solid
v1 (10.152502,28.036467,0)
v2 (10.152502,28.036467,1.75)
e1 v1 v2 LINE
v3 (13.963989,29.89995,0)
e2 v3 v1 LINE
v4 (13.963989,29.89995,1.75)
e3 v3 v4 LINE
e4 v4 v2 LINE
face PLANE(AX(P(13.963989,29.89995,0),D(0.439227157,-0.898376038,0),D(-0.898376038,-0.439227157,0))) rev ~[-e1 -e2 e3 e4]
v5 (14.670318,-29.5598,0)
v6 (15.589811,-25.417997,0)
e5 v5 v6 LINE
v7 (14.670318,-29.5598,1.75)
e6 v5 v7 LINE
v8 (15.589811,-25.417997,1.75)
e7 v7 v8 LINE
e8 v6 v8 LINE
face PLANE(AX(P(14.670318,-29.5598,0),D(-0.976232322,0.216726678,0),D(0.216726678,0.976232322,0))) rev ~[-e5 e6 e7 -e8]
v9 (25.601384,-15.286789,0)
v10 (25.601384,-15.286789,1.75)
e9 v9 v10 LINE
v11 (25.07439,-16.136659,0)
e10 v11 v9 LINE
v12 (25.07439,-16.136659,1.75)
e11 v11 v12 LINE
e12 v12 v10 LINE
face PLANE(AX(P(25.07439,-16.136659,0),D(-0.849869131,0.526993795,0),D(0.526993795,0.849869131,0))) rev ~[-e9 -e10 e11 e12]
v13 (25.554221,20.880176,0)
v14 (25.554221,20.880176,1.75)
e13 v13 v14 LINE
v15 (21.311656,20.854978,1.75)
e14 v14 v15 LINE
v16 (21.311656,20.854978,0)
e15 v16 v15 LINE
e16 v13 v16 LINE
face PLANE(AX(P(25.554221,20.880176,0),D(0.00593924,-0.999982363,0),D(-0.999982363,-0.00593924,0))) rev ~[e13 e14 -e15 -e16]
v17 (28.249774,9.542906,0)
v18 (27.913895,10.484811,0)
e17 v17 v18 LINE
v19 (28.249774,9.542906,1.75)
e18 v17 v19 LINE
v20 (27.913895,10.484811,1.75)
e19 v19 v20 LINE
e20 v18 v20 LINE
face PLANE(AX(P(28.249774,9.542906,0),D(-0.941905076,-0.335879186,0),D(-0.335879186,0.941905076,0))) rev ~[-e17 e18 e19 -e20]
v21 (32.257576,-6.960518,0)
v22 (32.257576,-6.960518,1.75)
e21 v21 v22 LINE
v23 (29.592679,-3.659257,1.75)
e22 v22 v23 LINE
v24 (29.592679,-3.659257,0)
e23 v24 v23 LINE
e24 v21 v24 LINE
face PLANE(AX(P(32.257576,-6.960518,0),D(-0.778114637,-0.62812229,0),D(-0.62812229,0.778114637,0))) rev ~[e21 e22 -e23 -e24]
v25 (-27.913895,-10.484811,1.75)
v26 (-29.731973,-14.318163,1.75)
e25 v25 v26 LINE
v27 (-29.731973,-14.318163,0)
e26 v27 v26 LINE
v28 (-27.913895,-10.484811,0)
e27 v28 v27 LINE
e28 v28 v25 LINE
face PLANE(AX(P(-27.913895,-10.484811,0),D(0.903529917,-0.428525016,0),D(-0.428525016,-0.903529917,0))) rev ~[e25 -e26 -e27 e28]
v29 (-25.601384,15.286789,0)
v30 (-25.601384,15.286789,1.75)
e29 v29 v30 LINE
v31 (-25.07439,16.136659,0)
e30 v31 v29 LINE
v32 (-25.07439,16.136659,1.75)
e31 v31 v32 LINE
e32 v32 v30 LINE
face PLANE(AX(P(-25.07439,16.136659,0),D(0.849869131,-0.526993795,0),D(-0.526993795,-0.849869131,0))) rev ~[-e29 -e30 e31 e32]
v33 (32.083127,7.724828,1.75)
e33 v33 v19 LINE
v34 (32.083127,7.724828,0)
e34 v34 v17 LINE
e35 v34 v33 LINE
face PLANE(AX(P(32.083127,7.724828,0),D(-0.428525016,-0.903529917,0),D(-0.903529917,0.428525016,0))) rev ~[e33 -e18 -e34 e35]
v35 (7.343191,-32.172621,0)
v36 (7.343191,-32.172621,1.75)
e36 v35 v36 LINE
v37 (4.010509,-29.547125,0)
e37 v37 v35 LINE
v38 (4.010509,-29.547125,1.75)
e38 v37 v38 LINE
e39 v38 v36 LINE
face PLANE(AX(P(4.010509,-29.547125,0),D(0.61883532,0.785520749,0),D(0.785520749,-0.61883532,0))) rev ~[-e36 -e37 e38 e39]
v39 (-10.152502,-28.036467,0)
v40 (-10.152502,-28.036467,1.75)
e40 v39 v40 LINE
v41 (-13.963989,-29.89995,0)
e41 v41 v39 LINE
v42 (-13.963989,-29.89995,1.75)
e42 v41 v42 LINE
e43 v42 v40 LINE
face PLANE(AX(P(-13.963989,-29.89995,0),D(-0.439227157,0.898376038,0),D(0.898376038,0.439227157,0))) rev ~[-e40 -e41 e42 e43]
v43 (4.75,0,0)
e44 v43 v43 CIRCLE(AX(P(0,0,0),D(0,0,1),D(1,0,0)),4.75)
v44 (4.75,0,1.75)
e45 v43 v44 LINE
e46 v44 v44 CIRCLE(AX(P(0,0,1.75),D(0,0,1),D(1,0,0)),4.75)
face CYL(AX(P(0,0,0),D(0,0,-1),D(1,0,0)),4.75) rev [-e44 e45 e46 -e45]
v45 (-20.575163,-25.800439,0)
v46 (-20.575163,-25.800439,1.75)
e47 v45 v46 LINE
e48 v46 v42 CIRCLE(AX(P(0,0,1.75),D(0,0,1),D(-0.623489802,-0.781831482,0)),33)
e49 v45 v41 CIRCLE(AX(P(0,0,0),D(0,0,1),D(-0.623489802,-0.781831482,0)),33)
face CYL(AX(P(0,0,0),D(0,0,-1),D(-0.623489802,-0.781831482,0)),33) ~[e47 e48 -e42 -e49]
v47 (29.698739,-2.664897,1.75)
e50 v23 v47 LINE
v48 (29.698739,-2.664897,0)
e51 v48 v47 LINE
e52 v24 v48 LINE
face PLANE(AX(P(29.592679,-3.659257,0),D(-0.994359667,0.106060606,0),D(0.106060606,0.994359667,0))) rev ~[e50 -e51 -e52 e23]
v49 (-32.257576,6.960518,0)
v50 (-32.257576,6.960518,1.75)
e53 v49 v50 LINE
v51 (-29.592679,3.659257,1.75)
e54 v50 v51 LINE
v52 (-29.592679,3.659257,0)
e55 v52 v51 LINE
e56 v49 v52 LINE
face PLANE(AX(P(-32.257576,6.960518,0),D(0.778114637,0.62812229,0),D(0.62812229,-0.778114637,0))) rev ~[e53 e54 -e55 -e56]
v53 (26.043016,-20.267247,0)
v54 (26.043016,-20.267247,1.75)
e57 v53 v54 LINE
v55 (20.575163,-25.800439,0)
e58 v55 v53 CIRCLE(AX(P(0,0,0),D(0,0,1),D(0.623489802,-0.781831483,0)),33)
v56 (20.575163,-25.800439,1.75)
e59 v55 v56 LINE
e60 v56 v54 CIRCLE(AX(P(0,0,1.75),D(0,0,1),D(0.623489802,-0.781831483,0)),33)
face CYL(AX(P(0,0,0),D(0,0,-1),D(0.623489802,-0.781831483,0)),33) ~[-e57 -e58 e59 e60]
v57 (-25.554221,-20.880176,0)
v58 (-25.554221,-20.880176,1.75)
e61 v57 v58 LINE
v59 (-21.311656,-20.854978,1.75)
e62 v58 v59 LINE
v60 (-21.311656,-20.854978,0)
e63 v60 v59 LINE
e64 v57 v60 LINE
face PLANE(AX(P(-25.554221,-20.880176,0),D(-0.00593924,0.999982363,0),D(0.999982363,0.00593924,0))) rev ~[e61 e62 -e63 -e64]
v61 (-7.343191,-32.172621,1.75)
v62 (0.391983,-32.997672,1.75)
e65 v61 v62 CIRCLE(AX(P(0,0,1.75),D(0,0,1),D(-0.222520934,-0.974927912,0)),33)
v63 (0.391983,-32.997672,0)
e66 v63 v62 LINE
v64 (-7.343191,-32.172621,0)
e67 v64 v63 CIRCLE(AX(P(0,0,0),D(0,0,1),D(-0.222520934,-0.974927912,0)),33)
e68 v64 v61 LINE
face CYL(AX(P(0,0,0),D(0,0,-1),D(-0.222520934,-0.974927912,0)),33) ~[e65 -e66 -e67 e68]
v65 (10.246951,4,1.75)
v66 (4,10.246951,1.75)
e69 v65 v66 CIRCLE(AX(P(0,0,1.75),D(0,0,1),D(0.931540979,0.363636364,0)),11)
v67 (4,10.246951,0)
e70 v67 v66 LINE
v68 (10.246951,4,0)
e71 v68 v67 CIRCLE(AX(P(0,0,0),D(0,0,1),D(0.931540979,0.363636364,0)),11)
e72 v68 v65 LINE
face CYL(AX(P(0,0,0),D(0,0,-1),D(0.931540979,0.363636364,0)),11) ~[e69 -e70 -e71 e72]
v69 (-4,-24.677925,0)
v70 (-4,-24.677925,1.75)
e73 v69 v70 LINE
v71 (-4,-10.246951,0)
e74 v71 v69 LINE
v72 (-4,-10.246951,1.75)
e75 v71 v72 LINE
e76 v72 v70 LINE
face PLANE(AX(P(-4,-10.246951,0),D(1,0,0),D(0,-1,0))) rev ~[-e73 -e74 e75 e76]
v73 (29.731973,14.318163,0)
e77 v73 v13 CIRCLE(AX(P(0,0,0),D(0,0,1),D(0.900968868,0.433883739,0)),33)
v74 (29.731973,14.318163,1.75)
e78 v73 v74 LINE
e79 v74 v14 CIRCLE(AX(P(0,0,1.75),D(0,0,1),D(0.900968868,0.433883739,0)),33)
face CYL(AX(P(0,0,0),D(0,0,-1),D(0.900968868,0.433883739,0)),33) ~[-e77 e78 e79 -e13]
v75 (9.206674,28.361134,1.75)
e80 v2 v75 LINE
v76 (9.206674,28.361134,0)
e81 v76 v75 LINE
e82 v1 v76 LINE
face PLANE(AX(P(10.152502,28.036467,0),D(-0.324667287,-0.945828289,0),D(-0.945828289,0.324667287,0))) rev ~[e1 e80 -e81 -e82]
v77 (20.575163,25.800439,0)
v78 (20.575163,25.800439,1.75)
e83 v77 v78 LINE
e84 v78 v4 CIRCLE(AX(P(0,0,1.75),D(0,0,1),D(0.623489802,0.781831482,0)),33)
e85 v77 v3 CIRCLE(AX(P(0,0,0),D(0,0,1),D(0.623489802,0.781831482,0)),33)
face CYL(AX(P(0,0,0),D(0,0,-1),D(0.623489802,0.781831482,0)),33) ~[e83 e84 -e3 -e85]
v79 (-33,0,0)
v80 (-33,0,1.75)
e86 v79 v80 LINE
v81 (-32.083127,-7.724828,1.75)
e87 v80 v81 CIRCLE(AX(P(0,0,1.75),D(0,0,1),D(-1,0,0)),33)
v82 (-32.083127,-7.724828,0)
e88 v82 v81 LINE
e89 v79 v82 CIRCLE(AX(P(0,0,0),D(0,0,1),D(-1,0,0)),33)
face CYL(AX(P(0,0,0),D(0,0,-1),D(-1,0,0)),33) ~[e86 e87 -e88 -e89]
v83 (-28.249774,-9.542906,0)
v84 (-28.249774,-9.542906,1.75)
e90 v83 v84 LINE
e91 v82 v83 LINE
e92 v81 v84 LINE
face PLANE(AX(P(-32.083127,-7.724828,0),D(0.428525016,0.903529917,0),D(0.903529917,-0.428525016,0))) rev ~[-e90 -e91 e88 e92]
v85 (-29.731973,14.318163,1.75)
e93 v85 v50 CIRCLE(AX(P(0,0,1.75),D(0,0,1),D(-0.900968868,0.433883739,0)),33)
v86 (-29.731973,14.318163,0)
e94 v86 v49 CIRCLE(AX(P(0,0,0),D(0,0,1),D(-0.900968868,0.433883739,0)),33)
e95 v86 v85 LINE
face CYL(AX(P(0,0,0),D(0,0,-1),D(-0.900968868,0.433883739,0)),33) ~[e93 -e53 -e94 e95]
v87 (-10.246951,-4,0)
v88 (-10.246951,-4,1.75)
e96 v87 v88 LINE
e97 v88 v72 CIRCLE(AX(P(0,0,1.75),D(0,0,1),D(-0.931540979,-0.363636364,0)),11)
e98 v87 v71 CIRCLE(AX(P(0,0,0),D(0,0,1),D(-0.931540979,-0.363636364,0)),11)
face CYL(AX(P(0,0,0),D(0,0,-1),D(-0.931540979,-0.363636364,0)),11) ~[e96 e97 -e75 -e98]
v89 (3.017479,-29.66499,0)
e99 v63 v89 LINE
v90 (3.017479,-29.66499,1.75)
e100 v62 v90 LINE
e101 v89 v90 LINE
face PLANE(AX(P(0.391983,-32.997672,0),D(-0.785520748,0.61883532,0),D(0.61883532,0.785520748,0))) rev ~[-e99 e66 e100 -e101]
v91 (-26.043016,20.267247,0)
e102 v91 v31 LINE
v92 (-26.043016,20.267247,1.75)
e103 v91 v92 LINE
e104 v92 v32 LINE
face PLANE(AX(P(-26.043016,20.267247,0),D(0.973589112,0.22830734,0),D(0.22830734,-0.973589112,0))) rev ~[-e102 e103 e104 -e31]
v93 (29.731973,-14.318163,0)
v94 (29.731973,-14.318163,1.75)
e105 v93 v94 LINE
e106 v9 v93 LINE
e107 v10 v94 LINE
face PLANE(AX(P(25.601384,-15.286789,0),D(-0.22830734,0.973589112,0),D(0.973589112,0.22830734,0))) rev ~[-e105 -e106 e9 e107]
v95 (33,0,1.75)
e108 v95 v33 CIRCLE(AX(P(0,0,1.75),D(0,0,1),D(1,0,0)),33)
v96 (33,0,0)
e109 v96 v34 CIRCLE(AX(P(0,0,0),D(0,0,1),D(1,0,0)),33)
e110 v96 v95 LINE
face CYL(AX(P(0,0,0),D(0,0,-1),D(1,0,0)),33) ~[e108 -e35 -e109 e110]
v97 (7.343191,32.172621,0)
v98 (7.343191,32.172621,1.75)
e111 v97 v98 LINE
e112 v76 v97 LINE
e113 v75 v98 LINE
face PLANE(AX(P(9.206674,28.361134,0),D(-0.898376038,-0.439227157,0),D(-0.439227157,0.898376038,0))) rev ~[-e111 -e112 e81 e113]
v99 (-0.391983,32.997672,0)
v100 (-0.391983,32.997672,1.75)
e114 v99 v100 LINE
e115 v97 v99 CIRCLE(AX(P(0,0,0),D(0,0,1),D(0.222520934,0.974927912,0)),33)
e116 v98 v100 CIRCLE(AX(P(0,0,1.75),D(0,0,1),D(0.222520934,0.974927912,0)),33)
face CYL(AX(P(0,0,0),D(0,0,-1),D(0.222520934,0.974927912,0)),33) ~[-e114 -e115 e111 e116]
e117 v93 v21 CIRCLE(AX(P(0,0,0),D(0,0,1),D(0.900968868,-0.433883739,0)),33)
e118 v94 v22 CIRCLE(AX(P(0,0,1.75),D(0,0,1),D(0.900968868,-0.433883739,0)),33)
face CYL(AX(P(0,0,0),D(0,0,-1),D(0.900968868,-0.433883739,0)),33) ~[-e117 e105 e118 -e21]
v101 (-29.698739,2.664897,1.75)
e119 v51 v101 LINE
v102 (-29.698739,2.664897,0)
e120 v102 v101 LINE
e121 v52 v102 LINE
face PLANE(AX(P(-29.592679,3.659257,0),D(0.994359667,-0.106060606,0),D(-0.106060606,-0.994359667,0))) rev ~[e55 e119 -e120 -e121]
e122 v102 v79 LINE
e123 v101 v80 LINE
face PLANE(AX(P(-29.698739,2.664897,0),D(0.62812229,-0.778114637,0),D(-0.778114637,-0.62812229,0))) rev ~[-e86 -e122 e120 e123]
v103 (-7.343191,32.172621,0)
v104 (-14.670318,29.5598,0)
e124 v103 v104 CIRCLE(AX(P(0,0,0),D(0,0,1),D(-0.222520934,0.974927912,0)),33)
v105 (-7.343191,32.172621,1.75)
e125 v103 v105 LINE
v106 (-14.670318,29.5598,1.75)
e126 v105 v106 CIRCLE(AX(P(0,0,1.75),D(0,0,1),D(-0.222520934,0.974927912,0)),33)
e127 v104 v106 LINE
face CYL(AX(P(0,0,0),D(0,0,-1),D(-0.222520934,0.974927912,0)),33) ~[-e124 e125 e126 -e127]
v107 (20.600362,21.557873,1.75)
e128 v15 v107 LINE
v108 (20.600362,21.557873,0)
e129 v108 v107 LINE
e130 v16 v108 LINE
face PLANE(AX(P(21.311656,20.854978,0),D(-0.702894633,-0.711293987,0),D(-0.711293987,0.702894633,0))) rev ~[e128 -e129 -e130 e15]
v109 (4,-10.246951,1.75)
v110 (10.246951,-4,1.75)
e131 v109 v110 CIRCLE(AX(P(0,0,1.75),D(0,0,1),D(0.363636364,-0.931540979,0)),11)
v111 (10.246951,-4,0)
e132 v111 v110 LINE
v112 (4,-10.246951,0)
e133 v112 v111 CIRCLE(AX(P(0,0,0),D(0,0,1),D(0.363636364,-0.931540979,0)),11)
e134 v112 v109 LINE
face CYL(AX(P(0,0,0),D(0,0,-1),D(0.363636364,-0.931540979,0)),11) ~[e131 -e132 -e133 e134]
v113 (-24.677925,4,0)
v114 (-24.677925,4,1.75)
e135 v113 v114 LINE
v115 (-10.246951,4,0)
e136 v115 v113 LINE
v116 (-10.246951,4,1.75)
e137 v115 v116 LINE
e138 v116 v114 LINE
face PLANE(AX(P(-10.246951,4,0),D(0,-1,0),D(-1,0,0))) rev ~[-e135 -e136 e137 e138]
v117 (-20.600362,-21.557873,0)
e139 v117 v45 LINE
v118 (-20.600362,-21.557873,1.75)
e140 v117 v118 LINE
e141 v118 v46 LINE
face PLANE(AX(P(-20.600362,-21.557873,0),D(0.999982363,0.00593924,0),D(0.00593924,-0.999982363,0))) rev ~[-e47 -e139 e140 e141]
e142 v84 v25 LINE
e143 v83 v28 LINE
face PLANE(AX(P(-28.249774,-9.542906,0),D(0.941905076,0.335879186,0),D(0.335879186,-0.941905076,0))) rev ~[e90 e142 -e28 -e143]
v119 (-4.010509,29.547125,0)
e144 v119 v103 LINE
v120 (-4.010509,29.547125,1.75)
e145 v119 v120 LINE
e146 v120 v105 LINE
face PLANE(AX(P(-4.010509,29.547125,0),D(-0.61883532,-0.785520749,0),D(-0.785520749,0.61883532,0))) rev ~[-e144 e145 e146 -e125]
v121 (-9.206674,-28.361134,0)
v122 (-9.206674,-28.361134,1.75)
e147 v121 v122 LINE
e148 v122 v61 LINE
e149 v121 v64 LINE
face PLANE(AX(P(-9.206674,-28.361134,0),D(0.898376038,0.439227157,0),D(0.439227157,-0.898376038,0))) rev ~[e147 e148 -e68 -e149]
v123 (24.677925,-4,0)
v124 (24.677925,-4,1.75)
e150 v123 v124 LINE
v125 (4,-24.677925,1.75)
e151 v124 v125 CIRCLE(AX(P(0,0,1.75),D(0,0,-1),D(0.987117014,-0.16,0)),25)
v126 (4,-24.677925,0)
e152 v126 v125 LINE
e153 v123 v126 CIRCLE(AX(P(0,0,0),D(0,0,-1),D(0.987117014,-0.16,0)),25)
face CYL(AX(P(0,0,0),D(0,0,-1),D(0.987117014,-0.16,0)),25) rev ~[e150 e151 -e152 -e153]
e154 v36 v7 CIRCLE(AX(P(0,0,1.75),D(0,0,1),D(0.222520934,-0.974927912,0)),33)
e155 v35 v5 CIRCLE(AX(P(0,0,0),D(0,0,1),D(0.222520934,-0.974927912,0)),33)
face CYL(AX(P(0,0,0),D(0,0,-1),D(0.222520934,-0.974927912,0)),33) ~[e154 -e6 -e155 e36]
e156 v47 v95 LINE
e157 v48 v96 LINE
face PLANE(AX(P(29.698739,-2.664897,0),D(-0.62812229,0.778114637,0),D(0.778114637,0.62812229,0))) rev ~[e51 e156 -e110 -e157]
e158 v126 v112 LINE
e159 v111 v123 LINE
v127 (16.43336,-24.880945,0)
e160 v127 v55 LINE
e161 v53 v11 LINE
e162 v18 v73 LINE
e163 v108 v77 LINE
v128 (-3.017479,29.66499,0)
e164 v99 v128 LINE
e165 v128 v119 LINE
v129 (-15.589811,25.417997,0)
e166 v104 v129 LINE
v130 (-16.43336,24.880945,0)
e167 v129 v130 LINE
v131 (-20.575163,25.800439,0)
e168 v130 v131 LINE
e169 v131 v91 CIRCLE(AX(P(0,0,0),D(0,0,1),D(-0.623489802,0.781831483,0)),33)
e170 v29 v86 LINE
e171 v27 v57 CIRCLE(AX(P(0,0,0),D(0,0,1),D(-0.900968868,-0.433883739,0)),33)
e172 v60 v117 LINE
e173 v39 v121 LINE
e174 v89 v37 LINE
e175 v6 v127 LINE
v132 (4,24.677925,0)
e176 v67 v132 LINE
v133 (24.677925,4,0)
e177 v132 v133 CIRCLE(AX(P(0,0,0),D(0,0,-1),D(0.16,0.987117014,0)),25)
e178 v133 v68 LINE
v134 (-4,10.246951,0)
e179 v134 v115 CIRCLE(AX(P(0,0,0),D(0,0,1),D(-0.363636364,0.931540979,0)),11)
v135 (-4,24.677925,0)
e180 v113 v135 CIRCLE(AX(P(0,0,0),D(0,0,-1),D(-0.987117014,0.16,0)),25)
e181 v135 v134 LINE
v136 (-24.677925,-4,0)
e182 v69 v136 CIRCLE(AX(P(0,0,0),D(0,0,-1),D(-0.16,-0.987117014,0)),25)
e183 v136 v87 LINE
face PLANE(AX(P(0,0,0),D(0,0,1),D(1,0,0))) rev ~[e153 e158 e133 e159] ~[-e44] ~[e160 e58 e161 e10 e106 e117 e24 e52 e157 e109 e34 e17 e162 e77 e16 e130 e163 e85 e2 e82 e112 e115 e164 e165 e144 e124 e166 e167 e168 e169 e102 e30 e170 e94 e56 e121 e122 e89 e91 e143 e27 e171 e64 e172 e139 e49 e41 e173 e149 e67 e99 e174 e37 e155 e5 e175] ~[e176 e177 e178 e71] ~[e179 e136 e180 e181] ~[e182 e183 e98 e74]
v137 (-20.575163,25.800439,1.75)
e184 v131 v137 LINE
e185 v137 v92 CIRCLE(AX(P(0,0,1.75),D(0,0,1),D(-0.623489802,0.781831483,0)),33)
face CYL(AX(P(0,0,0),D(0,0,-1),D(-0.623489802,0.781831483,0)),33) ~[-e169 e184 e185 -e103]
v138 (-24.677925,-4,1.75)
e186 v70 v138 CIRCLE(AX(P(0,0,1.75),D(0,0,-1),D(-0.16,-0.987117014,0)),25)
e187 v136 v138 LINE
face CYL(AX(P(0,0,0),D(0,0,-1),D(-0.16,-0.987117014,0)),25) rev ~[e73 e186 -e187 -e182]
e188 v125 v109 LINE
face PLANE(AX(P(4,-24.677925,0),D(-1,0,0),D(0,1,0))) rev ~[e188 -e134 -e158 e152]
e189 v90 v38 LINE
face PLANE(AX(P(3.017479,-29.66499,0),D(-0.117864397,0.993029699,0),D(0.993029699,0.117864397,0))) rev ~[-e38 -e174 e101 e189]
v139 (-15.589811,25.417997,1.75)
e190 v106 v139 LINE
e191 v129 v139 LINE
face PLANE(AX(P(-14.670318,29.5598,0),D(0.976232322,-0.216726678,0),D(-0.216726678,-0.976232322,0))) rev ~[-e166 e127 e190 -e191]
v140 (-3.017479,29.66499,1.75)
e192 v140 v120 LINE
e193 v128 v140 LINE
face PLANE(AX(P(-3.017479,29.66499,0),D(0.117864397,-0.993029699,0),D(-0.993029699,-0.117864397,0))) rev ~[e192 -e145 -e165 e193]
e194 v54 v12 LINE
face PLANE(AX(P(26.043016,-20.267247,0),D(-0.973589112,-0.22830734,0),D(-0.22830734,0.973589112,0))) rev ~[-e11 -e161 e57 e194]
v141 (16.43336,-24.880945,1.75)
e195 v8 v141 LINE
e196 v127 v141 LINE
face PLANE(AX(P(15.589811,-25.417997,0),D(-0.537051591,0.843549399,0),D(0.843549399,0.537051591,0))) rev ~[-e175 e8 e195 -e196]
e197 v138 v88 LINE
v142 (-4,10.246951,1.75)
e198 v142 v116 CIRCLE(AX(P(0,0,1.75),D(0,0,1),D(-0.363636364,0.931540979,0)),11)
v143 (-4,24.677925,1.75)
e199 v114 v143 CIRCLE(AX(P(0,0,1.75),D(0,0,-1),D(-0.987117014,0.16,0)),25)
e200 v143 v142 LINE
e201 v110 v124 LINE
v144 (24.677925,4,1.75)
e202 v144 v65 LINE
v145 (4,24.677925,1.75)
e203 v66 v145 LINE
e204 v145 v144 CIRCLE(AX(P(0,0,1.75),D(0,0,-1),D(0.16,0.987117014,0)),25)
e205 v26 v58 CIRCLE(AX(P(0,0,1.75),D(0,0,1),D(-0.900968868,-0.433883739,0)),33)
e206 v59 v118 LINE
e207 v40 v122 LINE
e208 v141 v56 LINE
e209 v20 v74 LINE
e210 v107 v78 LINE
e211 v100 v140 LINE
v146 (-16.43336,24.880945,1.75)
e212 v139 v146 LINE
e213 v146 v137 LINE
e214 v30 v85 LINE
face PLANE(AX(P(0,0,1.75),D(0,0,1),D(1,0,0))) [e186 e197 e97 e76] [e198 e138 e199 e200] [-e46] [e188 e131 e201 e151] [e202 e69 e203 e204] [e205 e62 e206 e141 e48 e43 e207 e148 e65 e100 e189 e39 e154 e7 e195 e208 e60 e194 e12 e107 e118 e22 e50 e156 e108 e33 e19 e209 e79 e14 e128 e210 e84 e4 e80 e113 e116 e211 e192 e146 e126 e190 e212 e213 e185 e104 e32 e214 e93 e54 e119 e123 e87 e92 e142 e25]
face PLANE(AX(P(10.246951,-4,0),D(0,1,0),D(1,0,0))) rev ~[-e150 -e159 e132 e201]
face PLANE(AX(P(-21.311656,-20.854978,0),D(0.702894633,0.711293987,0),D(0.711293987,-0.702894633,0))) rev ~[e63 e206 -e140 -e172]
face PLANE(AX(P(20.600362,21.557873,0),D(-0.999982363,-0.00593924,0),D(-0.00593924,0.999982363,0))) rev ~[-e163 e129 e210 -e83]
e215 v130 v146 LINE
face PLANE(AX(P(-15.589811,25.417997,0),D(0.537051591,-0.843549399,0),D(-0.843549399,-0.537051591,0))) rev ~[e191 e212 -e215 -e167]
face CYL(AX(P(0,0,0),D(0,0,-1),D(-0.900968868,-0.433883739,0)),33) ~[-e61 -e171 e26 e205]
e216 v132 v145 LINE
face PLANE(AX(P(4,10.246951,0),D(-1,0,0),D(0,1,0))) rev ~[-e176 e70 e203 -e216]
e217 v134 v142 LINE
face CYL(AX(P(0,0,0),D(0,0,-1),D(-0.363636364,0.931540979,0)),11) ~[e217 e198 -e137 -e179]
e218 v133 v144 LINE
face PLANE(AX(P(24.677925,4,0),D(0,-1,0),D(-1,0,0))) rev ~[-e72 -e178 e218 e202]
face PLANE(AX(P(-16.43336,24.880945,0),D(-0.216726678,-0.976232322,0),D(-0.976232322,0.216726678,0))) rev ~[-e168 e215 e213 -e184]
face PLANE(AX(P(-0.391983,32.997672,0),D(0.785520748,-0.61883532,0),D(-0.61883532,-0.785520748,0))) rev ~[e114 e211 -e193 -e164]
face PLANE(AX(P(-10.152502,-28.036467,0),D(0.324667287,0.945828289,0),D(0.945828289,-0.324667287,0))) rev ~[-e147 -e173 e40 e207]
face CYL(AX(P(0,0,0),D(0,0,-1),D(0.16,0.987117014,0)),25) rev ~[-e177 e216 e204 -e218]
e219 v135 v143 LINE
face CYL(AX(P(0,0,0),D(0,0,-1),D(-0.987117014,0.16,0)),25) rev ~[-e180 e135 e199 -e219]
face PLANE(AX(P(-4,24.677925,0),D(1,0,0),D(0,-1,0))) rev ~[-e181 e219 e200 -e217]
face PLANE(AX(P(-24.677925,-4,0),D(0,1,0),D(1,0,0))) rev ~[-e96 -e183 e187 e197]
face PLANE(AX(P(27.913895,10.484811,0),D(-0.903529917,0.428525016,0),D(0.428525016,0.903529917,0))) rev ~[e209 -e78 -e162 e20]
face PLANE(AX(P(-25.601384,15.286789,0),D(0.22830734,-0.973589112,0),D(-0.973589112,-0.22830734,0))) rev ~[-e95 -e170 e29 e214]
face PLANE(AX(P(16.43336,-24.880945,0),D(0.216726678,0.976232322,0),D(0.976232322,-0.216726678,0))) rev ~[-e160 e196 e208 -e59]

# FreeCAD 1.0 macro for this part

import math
import FreeCAD as App
import Part
import Sketcher

doc = App.newDocument("Part")
body = doc.addObject("PartDesign::Body", "Body")

# Sketch on XY plane
sketch1 = body.newObject("Sketcher::SketchObject", "Sketch")
sketch1.AttachmentSupport = (doc.getObject("XY_Plane"), [""])
sketch1.MapMode = "FlatFace"
sketch1.addGeometry(Part.LineSegment(App.Vector(-29.7, 2.7, 0), App.Vector(-33, 0, 0)), False)
sketch1.addGeometry(Part.ArcOfCircle(Part.Circle(App.Vector(0, 0, 0), App.Vector(0, 0, 1), 33), math.radians(-180), math.radians(-166.46)), False)
sketch1.addGeometry(Part.LineSegment(App.Vector(-32.1, -7.7, 0), App.Vector(-28.2, -9.5, 0)), False)
sketch1.addGeometry(Part.LineSegment(App.Vector(-28.2, -9.5, 0), App.Vector(-27.9, -10.5, 0)), False)
sketch1.addGeometry(Part.LineSegment(App.Vector(-27.9, -10.5, 0), App.Vector(-29.7, -14.3, 0)), False)
sketch1.addGeometry(Part.ArcOfCircle(Part.Circle(App.Vector(0, 0, 0), App.Vector(0, 0, 1), 33), math.radians(-154.29), math.radians(-140.75)), False)
sketch1.addGeometry(Part.LineSegment(App.Vector(-25.6, -20.9, 0), App.Vector(-21.3, -20.9, 0)), False)
sketch1.addGeometry(Part.LineSegment(App.Vector(-21.3, -20.9, 0), App.Vector(-20.6, -21.6, 0)), False)
sketch1.addGeometry(Part.LineSegment(App.Vector(-20.6, -21.6, 0), App.Vector(-20.6, -25.8, 0)), False)
sketch1.addGeometry(Part.ArcOfCircle(Part.Circle(App.Vector(0, 0, 0), App.Vector(0, 0, 1), 33), math.radians(-128.57), math.radians(-115.03)), False)
sketch1.addGeometry(Part.LineSegment(App.Vector(-14, -29.9, 0), App.Vector(-10.2, -28, 0)), False)
sketch1.addGeometry(Part.LineSegment(App.Vector(-10.2, -28, 0), App.Vector(-9.2, -28.4, 0)), False)
sketch1.addGeometry(Part.LineSegment(App.Vector(-9.2, -28.4, 0), App.Vector(-7.3, -32.2, 0)), False)
sketch1.addGeometry(Part.ArcOfCircle(Part.Circle(App.Vector(0, 0, 0), App.Vector(0, 0, 1), 33), math.radians(-102.86), math.radians(-89.32)), False)
sketch1.addGeometry(Part.LineSegment(App.Vector(0.4, -33, 0), App.Vector(3, -29.7, 0)), False)
sketch1.addGeometry(Part.LineSegment(App.Vector(3, -29.7, 0), App.Vector(4, -29.5, 0)), False)
sketch1.addGeometry(Part.LineSegment(App.Vector(4, -29.5, 0), App.Vector(7.3, -32.2, 0)), False)
sketch1.addGeometry(Part.ArcOfCircle(Part.Circle(App.Vector(0, 0, 0), App.Vector(0, 0, 1), 33), math.radians(-77.14), math.radians(-63.61)), False)
sketch1.addGeometry(Part.LineSegment(App.Vector(14.7, -29.6, 0), App.Vector(15.6, -25.4, 0)), False)
sketch1.addGeometry(Part.LineSegment(App.Vector(15.6, -25.4, 0), App.Vector(16.4, -24.9, 0)), False)
sketch1.addGeometry(Part.LineSegment(App.Vector(16.4, -24.9, 0), App.Vector(20.6, -25.8, 0)), False)
sketch1.addGeometry(Part.ArcOfCircle(Part.Circle(App.Vector(0, 0, 0), App.Vector(0, 0, 1), 33), math.radians(-51.43), math.radians(-37.89)), False)
sketch1.addGeometry(Part.LineSegment(App.Vector(26, -20.3, 0), App.Vector(25.1, -16.1, 0)), False)
sketch1.addGeometry(Part.LineSegment(App.Vector(25.1, -16.1, 0), App.Vector(25.6, -15.3, 0)), False)
sketch1.addGeometry(Part.LineSegment(App.Vector(25.6, -15.3, 0), App.Vector(29.7, -14.3, 0)), False)
sketch1.addGeometry(Part.ArcOfCircle(Part.Circle(App.Vector(0, 0, 0), App.Vector(0, 0, 1), 33), math.radians(-25.71), math.radians(-12.18)), False)
sketch1.addGeometry(Part.LineSegment(App.Vector(32.3, -7, 0), App.Vector(29.6, -3.7, 0)), False)
sketch1.addGeometry(Part.LineSegment(App.Vector(29.6, -3.7, 0), App.Vector(29.7, -2.7, 0)), False)
sketch1.addGeometry(Part.LineSegment(App.Vector(29.7, -2.7, 0), App.Vector(33, 0, 0)), False)
sketch1.addGeometry(Part.ArcOfCircle(Part.Circle(App.Vector(0, 0, 0), App.Vector(0, 0, 1), 33), math.radians(0), math.radians(13.54)), False)
sketch1.addGeometry(Part.LineSegment(App.Vector(32.1, 7.7, 0), App.Vector(28.2, 9.5, 0)), False)
sketch1.addGeometry(Part.LineSegment(App.Vector(28.2, 9.5, 0), App.Vector(27.9, 10.5, 0)), False)
sketch1.addGeometry(Part.LineSegment(App.Vector(27.9, 10.5, 0), App.Vector(29.7, 14.3, 0)), False)
sketch1.addGeometry(Part.ArcOfCircle(Part.Circle(App.Vector(0, 0, 0), App.Vector(0, 0, 1), 33), math.radians(25.71), math.radians(39.25)), False)
sketch1.addGeometry(Part.LineSegment(App.Vector(25.6, 20.9, 0), App.Vector(21.3, 20.9, 0)), False)
sketch1.addGeometry(Part.LineSegment(App.Vector(21.3, 20.9, 0), App.Vector(20.6, 21.6, 0)), False)
sketch1.addGeometry(Part.LineSegment(App.Vector(20.6, 21.6, 0), App.Vector(20.6, 25.8, 0)), False)
sketch1.addGeometry(Part.ArcOfCircle(Part.Circle(App.Vector(0, 0, 0), App.Vector(0, 0, 1), 33), math.radians(51.43), math.radians(64.97)), False)
sketch1.addGeometry(Part.LineSegment(App.Vector(14, 29.9, 0), App.Vector(10.2, 28, 0)), False)
sketch1.addGeometry(Part.LineSegment(App.Vector(10.2, 28, 0), App.Vector(9.2, 28.4, 0)), False)
sketch1.addGeometry(Part.LineSegment(App.Vector(9.2, 28.4, 0), App.Vector(7.3, 32.2, 0)), False)
sketch1.addGeometry(Part.ArcOfCircle(Part.Circle(App.Vector(0, 0, 0), App.Vector(0, 0, 1), 33), math.radians(77.14), math.radians(90.68)), False)
sketch1.addGeometry(Part.LineSegment(App.Vector(-0.4, 33, 0), App.Vector(-3, 29.7, 0)), False)
sketch1.addGeometry(Part.LineSegment(App.Vector(-3, 29.7, 0), App.Vector(-4, 29.5, 0)), False)
sketch1.addGeometry(Part.LineSegment(App.Vector(-4, 29.5, 0), App.Vector(-7.3, 32.2, 0)), False)
sketch1.addGeometry(Part.ArcOfCircle(Part.Circle(App.Vector(0, 0, 0), App.Vector(0, 0, 1), 33), math.radians(102.86), math.radians(116.39)), False)
sketch1.addGeometry(Part.LineSegment(App.Vector(-14.7, 29.6, 0), App.Vector(-15.6, 25.4, 0)), False)
sketch1.addGeometry(Part.LineSegment(App.Vector(-15.6, 25.4, 0), App.Vector(-16.4, 24.9, 0)), False)
sketch1.addGeometry(Part.LineSegment(App.Vector(-16.4, 24.9, 0), App.Vector(-20.6, 25.8, 0)), False)
sketch1.addGeometry(Part.ArcOfCircle(Part.Circle(App.Vector(0, 0, 0), App.Vector(0, 0, 1), 33), math.radians(128.57), math.radians(142.11)), False)
sketch1.addGeometry(Part.LineSegment(App.Vector(-26, 20.3, 0), App.Vector(-25.1, 16.1, 0)), False)
sketch1.addGeometry(Part.LineSegment(App.Vector(-25.1, 16.1, 0), App.Vector(-25.6, 15.3, 0)), False)
sketch1.addGeometry(Part.LineSegment(App.Vector(-25.6, 15.3, 0), App.Vector(-29.7, 14.3, 0)), False)
sketch1.addGeometry(Part.ArcOfCircle(Part.Circle(App.Vector(0, 0, 0), App.Vector(0, 0, 1), 33), math.radians(154.29), math.radians(167.82)), False)
sketch1.addGeometry(Part.LineSegment(App.Vector(-32.3, 7, 0), App.Vector(-29.6, 3.7, 0)), False)
sketch1.addGeometry(Part.LineSegment(App.Vector(-29.6, 3.7, 0), App.Vector(-29.7, 2.7, 0)), False)
sketch1.addGeometry(Part.ArcOfCircle(Part.Circle(App.Vector(0, 0, 0), App.Vector(0, 0, 1), 25), math.radians(-171), math.radians(-99)), False)
sketch1.addGeometry(Part.LineSegment(App.Vector(-24.7, -4, 0), App.Vector(-10.2, -4, 0)), False)
sketch1.addGeometry(Part.ArcOfCircle(Part.Circle(App.Vector(0, 0, 0), App.Vector(0, 0, 1), 11), math.radians(-159), math.radians(-111)), False)
sketch1.addGeometry(Part.LineSegment(App.Vector(-4, -10.2, 0), App.Vector(-4, -24.7, 0)), False)
sketch1.addGeometry(Part.ArcOfCircle(Part.Circle(App.Vector(0, 0, 0), App.Vector(0, 0, 1), 25), math.radians(-81), math.radians(-9)), False)
sketch1.addGeometry(Part.LineSegment(App.Vector(4, -24.7, 0), App.Vector(4, -10.2, 0)), False)
sketch1.addGeometry(Part.ArcOfCircle(Part.Circle(App.Vector(0, 0, 0), App.Vector(0, 0, 1), 11), math.radians(-69), math.radians(-21)), False)
sketch1.addGeometry(Part.LineSegment(App.Vector(10.2, -4, 0), App.Vector(24.7, -4, 0)), False)
sketch1.addGeometry(Part.Circle(App.Vector(0, 0, 0), App.Vector(0, 0, 1), 4.8), False)
sketch1.addGeometry(Part.ArcOfCircle(Part.Circle(App.Vector(0, 0, 0), App.Vector(0, 0, 1), 25), math.radians(99), math.radians(171)), False)
sketch1.addGeometry(Part.LineSegment(App.Vector(-4, 24.7, 0), App.Vector(-4, 10.2, 0)), False)
sketch1.addGeometry(Part.ArcOfCircle(Part.Circle(App.Vector(0, 0, 0), App.Vector(0, 0, 1), 11), math.radians(111), math.radians(159)), False)
sketch1.addGeometry(Part.LineSegment(App.Vector(-10.2, 4, 0), App.Vector(-24.7, 4, 0)), False)
sketch1.addGeometry(Part.ArcOfCircle(Part.Circle(App.Vector(0, 0, 0), App.Vector(0, 0, 1), 25), math.radians(9), math.radians(81)), False)
sketch1.addGeometry(Part.LineSegment(App.Vector(24.7, 4, 0), App.Vector(10.2, 4, 0)), False)
sketch1.addGeometry(Part.ArcOfCircle(Part.Circle(App.Vector(0, 0, 0), App.Vector(0, 0, 1), 11), math.radians(21), math.radians(69)), False)
sketch1.addGeometry(Part.LineSegment(App.Vector(4, 10.2, 0), App.Vector(4, 24.7, 0)), False)
sketch1.addConstraint(Sketcher.Constraint("Coincident", 0, 2, 1, 1))
sketch1.addConstraint(Sketcher.Constraint("Coincident", 1, 2, 2, 1))
sketch1.addConstraint(Sketcher.Constraint("Coincident", 2, 2, 3, 1))
sketch1.addConstraint(Sketcher.Constraint("Coincident", 3, 2, 4, 1))
sketch1.addConstraint(Sketcher.Constraint("Coincident", 4, 2, 5, 1))
sketch1.addConstraint(Sketcher.Constraint("Coincident", 5, 2, 6, 1))
sketch1.addConstraint(Sketcher.Constraint("Coincident", 6, 2, 7, 1))
sketch1.addConstraint(Sketcher.Constraint("Coincident", 7, 2, 8, 1))
sketch1.addConstraint(Sketcher.Constraint("Coincident", 8, 2, 9, 1))
sketch1.addConstraint(Sketcher.Constraint("Coincident", 9, 2, 10, 1))
sketch1.addConstraint(Sketcher.Constraint("Coincident", 10, 2, 11, 1))
sketch1.addConstraint(Sketcher.Constraint("Coincident", 11, 2, 12, 1))
sketch1.addConstraint(Sketcher.Constraint("Coincident", 12, 2, 13, 1))
sketch1.addConstraint(Sketcher.Constraint("Coincident", 13, 2, 14, 1))
sketch1.addConstraint(Sketcher.Constraint("Coincident", 14, 2, 15, 1))
sketch1.addConstraint(Sketcher.Constraint("Coincident", 15, 2, 16, 1))
sketch1.addConstraint(Sketcher.Constraint("Coincident", 16, 2, 17, 1))
sketch1.addConstraint(Sketcher.Constraint("Coincident", 17, 2, 18, 1))
sketch1.addConstraint(Sketcher.Constraint("Coincident", 18, 2, 19, 1))
sketch1.addConstraint(Sketcher.Constraint("Coincident", 19, 2, 20, 1))
sketch1.addConstraint(Sketcher.Constraint("Coincident", 20, 2, 21, 1))
sketch1.addConstraint(Sketcher.Constraint("Coincident", 21, 2, 22, 1))
sketch1.addConstraint(Sketcher.Constraint("Coincident", 22, 2, 23, 1))
sketch1.addConstraint(Sketcher.Constraint("Coincident", 23, 2, 24, 1))
sketch1.addConstraint(Sketcher.Constraint("Coincident", 24, 2, 25, 1))
sketch1.addConstraint(Sketcher.Constraint("Coincident", 25, 2, 26, 1))
sketch1.addConstraint(Sketcher.Constraint("Coincident", 26, 2, 27, 1))
sketch1.addConstraint(Sketcher.Constraint("Coincident", 27, 2, 28, 1))
sketch1.addConstraint(Sketcher.Constraint("Coincident", 28, 2, 29, 1))
sketch1.addConstraint(Sketcher.Constraint("Coincident", 29, 2, 30, 1))
sketch1.addConstraint(Sketcher.Constraint("Coincident", 30, 2, 31, 1))
sketch1.addConstraint(Sketcher.Constraint("Coincident", 31, 2, 32, 1))
sketch1.addConstraint(Sketcher.Constraint("Coincident", 32, 2, 33, 1))
sketch1.addConstraint(Sketcher.Constraint("Coincident", 33, 2, 34, 1))
sketch1.addConstraint(Sketcher.Constraint("Coincident", 34, 2, 35, 1))
sketch1.addConstraint(Sketcher.Constraint("Coincident", 35, 2, 36, 1))
sketch1.addConstraint(Sketcher.Constraint("Coincident", 36, 2, 37, 1))
sketch1.addConstraint(Sketcher.Constraint("Coincident", 37, 2, 38, 1))
sketch1.addConstraint(Sketcher.Constraint("Coincident", 38, 2, 39, 1))
sketch1.addConstraint(Sketcher.Constraint("Coincident", 39, 2, 40, 1))
sketch1.addConstraint(Sketcher.Constraint("Coincident", 40, 2, 41, 1))
sketch1.addConstraint(Sketcher.Constraint("Coincident", 41, 2, 42, 1))
sketch1.addConstraint(Sketcher.Constraint("Coincident", 42, 2, 43, 1))
sketch1.addConstraint(Sketcher.Constraint("Coincident", 43, 2, 44, 1))
sketch1.addConstraint(Sketcher.Constraint("Coincident", 44, 2, 45, 1))
sketch1.addConstraint(Sketcher.Constraint("Coincident", 45, 2, 46, 1))
sketch1.addConstraint(Sketcher.Constraint("Coincident", 46, 2, 47, 1))
sketch1.addConstraint(Sketcher.Constraint("Coincident", 47, 2, 48, 1))
sketch1.addConstraint(Sketcher.Constraint("Coincident", 48, 2, 49, 1))
sketch1.addConstraint(Sketcher.Constraint("Coincident", 49, 2, 50, 1))
sketch1.addConstraint(Sketcher.Constraint("Coincident", 50, 2, 51, 1))
sketch1.addConstraint(Sketcher.Constraint("Coincident", 51, 2, 52, 1))
sketch1.addConstraint(Sketcher.Constraint("Coincident", 52, 2, 53, 1))
sketch1.addConstraint(Sketcher.Constraint("Coincident", 53, 2, 54, 1))
sketch1.addConstraint(Sketcher.Constraint("Coincident", 54, 2, 55, 1))
sketch1.addConstraint(Sketcher.Constraint("Coincident", 55, 2, 0, 1))
sketch1.addConstraint(Sketcher.Constraint("Coincident", 56, 1, 57, 1))
sketch1.addConstraint(Sketcher.Constraint("Coincident", 57, 2, 58, 1))
sketch1.addConstraint(Sketcher.Constraint("Coincident", 58, 2, 59, 1))
sketch1.addConstraint(Sketcher.Constraint("Coincident", 59, 2, 56, 2))
sketch1.addConstraint(Sketcher.Constraint("Coincident", 60, 1, 61, 1))
sketch1.addConstraint(Sketcher.Constraint("Coincident", 61, 2, 62, 1))
sketch1.addConstraint(Sketcher.Constraint("Coincident", 62, 2, 63, 1))
sketch1.addConstraint(Sketcher.Constraint("Coincident", 63, 2, 60, 2))
sketch1.addConstraint(Sketcher.Constraint("Coincident", 65, 1, 66, 1))
sketch1.addConstraint(Sketcher.Constraint("Coincident", 66, 2, 67, 1))
sketch1.addConstraint(Sketcher.Constraint("Coincident", 67, 2, 68, 1))
sketch1.addConstraint(Sketcher.Constraint("Coincident", 68, 2, 65, 2))
sketch1.addConstraint(Sketcher.Constraint("Coincident", 69, 1, 70, 1))
sketch1.addConstraint(Sketcher.Constraint("Coincident", 70, 2, 71, 1))
sketch1.addConstraint(Sketcher.Constraint("Coincident", 71, 2, 72, 1))
sketch1.addConstraint(Sketcher.Constraint("Coincident", 72, 2, 69, 2))
sketch1.addConstraint(Sketcher.Constraint("Horizontal", 57))
sketch1.addConstraint(Sketcher.Constraint("Vertical", 59))
sketch1.addConstraint(Sketcher.Constraint("Vertical", 61))
sketch1.addConstraint(Sketcher.Constraint("Horizontal", 63))
sketch1.addConstraint(Sketcher.Constraint("Vertical", 66))
sketch1.addConstraint(Sketcher.Constraint("Horizontal", 68))
sketch1.addConstraint(Sketcher.Constraint("Horizontal", 70))
sketch1.addConstraint(Sketcher.Constraint("Vertical", 72))
sketch1.addConstraint(Sketcher.Constraint("Coincident", 1, 3, -1, 1))
sketch1.addConstraint(Sketcher.Constraint("Coincident", 5, 3, -1, 1))
sketch1.addConstraint(Sketcher.Constraint("Coincident", 9, 3, -1, 1))
sketch1.addConstraint(Sketcher.Constraint("Coincident", 13, 3, -1, 1))
sketch1.addConstraint(Sketcher.Constraint("Coincident", 17, 3, -1, 1))
sketch1.addConstraint(Sketcher.Constraint("Coincident", 21, 3, -1, 1))
sketch1.addConstraint(Sketcher.Constraint("Coincident", 25, 3, -1, 1))
sketch1.addConstraint(Sketcher.Constraint("Coincident", 29, 3, -1, 1))
sketch1.addConstraint(Sketcher.Constraint("Coincident", 33, 3, -1, 1))
sketch1.addConstraint(Sketcher.Constraint("Coincident", 37, 3, -1, 1))
sketch1.addConstraint(Sketcher.Constraint("Coincident", 41, 3, -1, 1))
sketch1.addConstraint(Sketcher.Constraint("Coincident", 45, 3, -1, 1))
sketch1.addConstraint(Sketcher.Constraint("Coincident", 49, 3, -1, 1))
sketch1.addConstraint(Sketcher.Constraint("Coincident", 53, 3, -1, 1))
sketch1.addConstraint(Sketcher.Constraint("Coincident", 56, 3, -1, 1))
sketch1.addConstraint(Sketcher.Constraint("Coincident", 58, 3, -1, 1))
sketch1.addConstraint(Sketcher.Constraint("Coincident", 60, 3, -1, 1))
sketch1.addConstraint(Sketcher.Constraint("Coincident", 62, 3, -1, 1))
sketch1.addConstraint(Sketcher.Constraint("Coincident", 64, 3, -1, 1))
sketch1.addConstraint(Sketcher.Constraint("Coincident", 65, 3, -1, 1))
sketch1.addConstraint(Sketcher.Constraint("Coincident", 67, 3, -1, 1))
sketch1.addConstraint(Sketcher.Constraint("Coincident", 69, 3, -1, 1))
sketch1.addConstraint(Sketcher.Constraint("Coincident", 71, 3, -1, 1))
sketch1.addConstraint(Sketcher.Constraint("Equal", 1, 5))
sketch1.addConstraint(Sketcher.Constraint("Equal", 5, 9))
sketch1.addConstraint(Sketcher.Constraint("Equal", 9, 13))
sketch1.addConstraint(Sketcher.Constraint("Equal", 13, 17))
sketch1.addConstraint(Sketcher.Constraint("Equal", 17, 21))
sketch1.addConstraint(Sketcher.Constraint("Equal", 21, 25))
sketch1.addConstraint(Sketcher.Constraint("Equal", 25, 29))
sketch1.addConstraint(Sketcher.Constraint("Equal", 29, 33))
sketch1.addConstraint(Sketcher.Constraint("Equal", 33, 37))
sketch1.addConstraint(Sketcher.Constraint("Equal", 37, 41))
sketch1.addConstraint(Sketcher.Constraint("Equal", 41, 45))
sketch1.addConstraint(Sketcher.Constraint("Equal", 45, 49))
sketch1.addConstraint(Sketcher.Constraint("Equal", 49, 53))
sketch1.addConstraint(Sketcher.Constraint("Equal", 56, 60))
sketch1.addConstraint(Sketcher.Constraint("Equal", 58, 62))
sketch1.addConstraint(Sketcher.Constraint("Equal", 60, 65))
sketch1.addConstraint(Sketcher.Constraint("Equal", 62, 67))
sketch1.addConstraint(Sketcher.Constraint("Equal", 65, 69))
sketch1.addConstraint(Sketcher.Constraint("Equal", 67, 71))
sketch1.addConstraint(Sketcher.Constraint("Symmetric", 2, 2, 30, 2, -1, 1))
sketch1.addConstraint(Sketcher.Constraint("Symmetric", 3, 2, 31, 2, -1, 1))
sketch1.addConstraint(Sketcher.Constraint("Symmetric", 6, 2, 34, 2, -1, 1))
sketch1.addConstraint(Sketcher.Constraint("Symmetric", 7, 2, 35, 2, -1, 1))
sketch1.addConstraint(Sketcher.Constraint("Symmetric", 10, 2, 38, 2, -1, 1))
sketch1.addConstraint(Sketcher.Constraint("Symmetric", 11, 2, 39, 2, -1, 1))
sketch1.addConstraint(Sketcher.Constraint("Symmetric", 14, 2, 42, 2, -1, 1))
sketch1.addConstraint(Sketcher.Constraint("Symmetric", 15, 2, 43, 2, -1, 1))
sketch1.addConstraint(Sketcher.Constraint("Symmetric", 18, 2, 46, 2, -1, 1))
sketch1.addConstraint(Sketcher.Constraint("Symmetric", 19, 2, 47, 2, -1, 1))
sketch1.addConstraint(Sketcher.Constraint("Symmetric", 22, 2, 50, 2, -1, 1))
sketch1.addConstraint(Sketcher.Constraint("Symmetric", 23, 2, 51, 2, -1, 1))
sketch1.addConstraint(Sketcher.Constraint("Symmetric", 26, 2, 54, 2, -1, 1))
sketch1.addConstraint(Sketcher.Constraint("Symmetric", 27, 2, 55, 2, -1, 1))
sketch1.addConstraint(Sketcher.Constraint("PointOnObject", 0, 2, -1))
sketch1.addConstraint(Sketcher.Constraint("PointOnObject", 28, 2, -1))
sketch1.addConstraint(Sketcher.Constraint("Perpendicular", 2, 4))
sketch1.addConstraint(Sketcher.Constraint("Perpendicular", 6, 8))
sketch1.addConstraint(Sketcher.Constraint("Perpendicular", 10, 12))
sketch1.addConstraint(Sketcher.Constraint("Perpendicular", 14, 16))
sketch1.addConstraint(Sketcher.Constraint("Perpendicular", 18, 20))
sketch1.addConstraint(Sketcher.Constraint("Perpendicular", 22, 24))
sketch1.addConstraint(Sketcher.Constraint("Perpendicular", 0, 26))
sketch1.addConstraint(Sketcher.Constraint("Perpendicular", 4, 30))
sketch1.addConstraint(Sketcher.Constraint("Perpendicular", 30, 32))
sketch1.addConstraint(Sketcher.Constraint("Perpendicular", 8, 34))
sketch1.addConstraint(Sketcher.Constraint("Perpendicular", 34, 36))
sketch1.addConstraint(Sketcher.Constraint("Perpendicular", 12, 38))
sketch1.addConstraint(Sketcher.Constraint("Perpendicular", 38, 40))
sketch1.addConstraint(Sketcher.Constraint("Perpendicular", 16, 42))
sketch1.addConstraint(Sketcher.Constraint("Perpendicular", 42, 44))
sketch1.addConstraint(Sketcher.Constraint("Perpendicular", 20, 46))
sketch1.addConstraint(Sketcher.Constraint("Perpendicular", 46, 48))
sketch1.addConstraint(Sketcher.Constraint("Perpendicular", 24, 50))
sketch1.addConstraint(Sketcher.Constraint("Perpendicular", 50, 52))
sketch1.addConstraint(Sketcher.Constraint("Perpendicular", 28, 54))
sketch1.addConstraint(Sketcher.Constraint("Horizontal", 12, 2, 16, 2))
sketch1.addConstraint(Sketcher.Constraint("Horizontal", 8, 2, 20, 2))
sketch1.addConstraint(Sketcher.Constraint("Horizontal", 4, 2, 24, 2))
sketch1.addConstraint(Sketcher.Constraint("Horizontal", 59, 2, 60, 1))
sketch1.addConstraint(Sketcher.Constraint("Horizontal", 57, 2, 62, 2))
sketch1.addConstraint(Sketcher.Constraint("Horizontal", 68, 2, 69, 1))
sketch1.addConstraint(Sketcher.Constraint("Horizontal", 66, 2, 71, 2))
sketch1.addConstraint(Sketcher.Constraint("Vertical", 59, 2, 65, 1))
sketch1.addConstraint(Sketcher.Constraint("Vertical", 57, 2, 67, 2))
sketch1.addConstraint(Sketcher.Constraint("Equal", 70, 59))
sketch1.addConstraint(Sketcher.Constraint("Equal", 0, 2))
sketch1.addConstraint(Sketcher.Constraint("Equal", 2, 4))
sketch1.addConstraint(Sketcher.Constraint("Equal", 4, 6))
sketch1.addConstraint(Sketcher.Constraint("Equal", 3, 7))
sketch1.addConstraint(Sketcher.Constraint("Equal", 6, 8))
sketch1.addConstraint(Sketcher.Constraint("Equal", 8, 10))
sketch1.addConstraint(Sketcher.Constraint("Equal", 7, 11))
sketch1.addConstraint(Sketcher.Constraint("Equal", 10, 12))
sketch1.addConstraint(Sketcher.Constraint("Equal", 12, 14))
sketch1.addConstraint(Sketcher.Constraint("Equal", 11, 15))
sketch1.addConstraint(Sketcher.Constraint("Equal", 14, 16))
sketch1.addConstraint(Sketcher.Constraint("Equal", 16, 18))
sketch1.addConstraint(Sketcher.Constraint("Equal", 15, 19))
sketch1.addConstraint(Sketcher.Constraint("Equal", 18, 20))
sketch1.addConstraint(Sketcher.Constraint("Equal", 20, 22))
sketch1.addConstraint(Sketcher.Constraint("Equal", 19, 23))
sketch1.addConstraint(Sketcher.Constraint("Equal", 22, 24))
sketch1.addConstraint(Sketcher.Constraint("Equal", 24, 26))
sketch1.addConstraint(Sketcher.Constraint("Equal", 23, 27))
sketch1.addConstraint(Sketcher.Constraint("Radius", 1, 33.0))
sketch1.addConstraint(Sketcher.Constraint("Radius", 56, 25.0))
sketch1.addConstraint(Sketcher.Constraint("Radius", 58, 11.0))
sketch1.addConstraint(Sketcher.Constraint("Diameter", 64, 9.5))
sketch1.addConstraint(Sketcher.Constraint("Distance", 3, 1.0))
sketch1.addConstraint(Sketcher.Constraint("DistanceY", 56, 1, -1, 1, 4.0))
sketch1.addConstraint(Sketcher.Constraint("DistanceY", 17, 2, -1, 1, 29.5598))
sketch1.addConstraint(Sketcher.Constraint("Distance", 0, 4.242641))
sketch1.addConstraint(Sketcher.Constraint("DistanceY", 3, 2, -1, 1, 10.484811))
sketch1.addConstraint(Sketcher.Constraint("DistanceY", 6, 2, -1, 1, 20.854978))
sketch1.addConstraint(Sketcher.Constraint("DistanceX", 9, 2, -1, 1, 13.963989))
sketch1.addConstraint(Sketcher.Constraint("DistanceX", -1, 1, 14, 2, 3.017479))
sketch1.addConstraint(Sketcher.Constraint("DistanceX", -1, 1, 18, 2, 15.589811))
sketch1.addConstraint(Sketcher.Constraint("DistanceX", -1, 1, 22, 2, 25.07439))
sketch1.addConstraint(Sketcher.Constraint("DistanceY", 22, 2, -1, 1, 16.136659))
sketch1.addConstraint(Sketcher.Constraint("DistanceX", -1, 1, 26, 2, 29.592679))
sketch1.addConstraint(Sketcher.Constraint("DistanceX", 10, 2, -1, 1, 10.152502))
pad1 = body.newObject("PartDesign::Pad", "Pad")
pad1.Profile = sketch1
pad1.Length = 1.75

doc.recompute()
